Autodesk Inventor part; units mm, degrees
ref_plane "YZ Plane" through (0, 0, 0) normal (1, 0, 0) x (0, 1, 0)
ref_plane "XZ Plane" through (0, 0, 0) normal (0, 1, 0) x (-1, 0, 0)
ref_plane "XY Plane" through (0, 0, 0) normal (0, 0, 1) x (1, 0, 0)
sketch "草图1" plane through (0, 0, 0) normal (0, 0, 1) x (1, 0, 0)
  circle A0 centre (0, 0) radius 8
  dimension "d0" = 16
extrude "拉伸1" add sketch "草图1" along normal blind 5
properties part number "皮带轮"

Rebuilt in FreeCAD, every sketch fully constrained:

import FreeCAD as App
import Part
import Sketcher

V = App.Vector

doc = App.newDocument("Part")
body = doc.addObject("PartDesign::Body", "Body")

sketch1 = doc.addObject("Sketcher::SketchObject", "Sketch")
body.addObject(sketch1)
sketch1.AttachmentSupport = (doc.XY_Plane, [""])
sketch1.MapMode = "FlatFace"
sketch1.addGeometry(Part.Circle(V(0, 0, 0), V(0, 0, 1), 8), False)
sketch1.addConstraint(Sketcher.Constraint("Coincident", 0, 3, -1, 1))
sketch1.addConstraint(Sketcher.Constraint("Diameter", 0, 16.0))
pad1 = doc.addObject("PartDesign::Pad", "Pad")
body.addObject(pad1)
pad1.Profile = sketch1
pad1.Length = 5

doc.recompute()
